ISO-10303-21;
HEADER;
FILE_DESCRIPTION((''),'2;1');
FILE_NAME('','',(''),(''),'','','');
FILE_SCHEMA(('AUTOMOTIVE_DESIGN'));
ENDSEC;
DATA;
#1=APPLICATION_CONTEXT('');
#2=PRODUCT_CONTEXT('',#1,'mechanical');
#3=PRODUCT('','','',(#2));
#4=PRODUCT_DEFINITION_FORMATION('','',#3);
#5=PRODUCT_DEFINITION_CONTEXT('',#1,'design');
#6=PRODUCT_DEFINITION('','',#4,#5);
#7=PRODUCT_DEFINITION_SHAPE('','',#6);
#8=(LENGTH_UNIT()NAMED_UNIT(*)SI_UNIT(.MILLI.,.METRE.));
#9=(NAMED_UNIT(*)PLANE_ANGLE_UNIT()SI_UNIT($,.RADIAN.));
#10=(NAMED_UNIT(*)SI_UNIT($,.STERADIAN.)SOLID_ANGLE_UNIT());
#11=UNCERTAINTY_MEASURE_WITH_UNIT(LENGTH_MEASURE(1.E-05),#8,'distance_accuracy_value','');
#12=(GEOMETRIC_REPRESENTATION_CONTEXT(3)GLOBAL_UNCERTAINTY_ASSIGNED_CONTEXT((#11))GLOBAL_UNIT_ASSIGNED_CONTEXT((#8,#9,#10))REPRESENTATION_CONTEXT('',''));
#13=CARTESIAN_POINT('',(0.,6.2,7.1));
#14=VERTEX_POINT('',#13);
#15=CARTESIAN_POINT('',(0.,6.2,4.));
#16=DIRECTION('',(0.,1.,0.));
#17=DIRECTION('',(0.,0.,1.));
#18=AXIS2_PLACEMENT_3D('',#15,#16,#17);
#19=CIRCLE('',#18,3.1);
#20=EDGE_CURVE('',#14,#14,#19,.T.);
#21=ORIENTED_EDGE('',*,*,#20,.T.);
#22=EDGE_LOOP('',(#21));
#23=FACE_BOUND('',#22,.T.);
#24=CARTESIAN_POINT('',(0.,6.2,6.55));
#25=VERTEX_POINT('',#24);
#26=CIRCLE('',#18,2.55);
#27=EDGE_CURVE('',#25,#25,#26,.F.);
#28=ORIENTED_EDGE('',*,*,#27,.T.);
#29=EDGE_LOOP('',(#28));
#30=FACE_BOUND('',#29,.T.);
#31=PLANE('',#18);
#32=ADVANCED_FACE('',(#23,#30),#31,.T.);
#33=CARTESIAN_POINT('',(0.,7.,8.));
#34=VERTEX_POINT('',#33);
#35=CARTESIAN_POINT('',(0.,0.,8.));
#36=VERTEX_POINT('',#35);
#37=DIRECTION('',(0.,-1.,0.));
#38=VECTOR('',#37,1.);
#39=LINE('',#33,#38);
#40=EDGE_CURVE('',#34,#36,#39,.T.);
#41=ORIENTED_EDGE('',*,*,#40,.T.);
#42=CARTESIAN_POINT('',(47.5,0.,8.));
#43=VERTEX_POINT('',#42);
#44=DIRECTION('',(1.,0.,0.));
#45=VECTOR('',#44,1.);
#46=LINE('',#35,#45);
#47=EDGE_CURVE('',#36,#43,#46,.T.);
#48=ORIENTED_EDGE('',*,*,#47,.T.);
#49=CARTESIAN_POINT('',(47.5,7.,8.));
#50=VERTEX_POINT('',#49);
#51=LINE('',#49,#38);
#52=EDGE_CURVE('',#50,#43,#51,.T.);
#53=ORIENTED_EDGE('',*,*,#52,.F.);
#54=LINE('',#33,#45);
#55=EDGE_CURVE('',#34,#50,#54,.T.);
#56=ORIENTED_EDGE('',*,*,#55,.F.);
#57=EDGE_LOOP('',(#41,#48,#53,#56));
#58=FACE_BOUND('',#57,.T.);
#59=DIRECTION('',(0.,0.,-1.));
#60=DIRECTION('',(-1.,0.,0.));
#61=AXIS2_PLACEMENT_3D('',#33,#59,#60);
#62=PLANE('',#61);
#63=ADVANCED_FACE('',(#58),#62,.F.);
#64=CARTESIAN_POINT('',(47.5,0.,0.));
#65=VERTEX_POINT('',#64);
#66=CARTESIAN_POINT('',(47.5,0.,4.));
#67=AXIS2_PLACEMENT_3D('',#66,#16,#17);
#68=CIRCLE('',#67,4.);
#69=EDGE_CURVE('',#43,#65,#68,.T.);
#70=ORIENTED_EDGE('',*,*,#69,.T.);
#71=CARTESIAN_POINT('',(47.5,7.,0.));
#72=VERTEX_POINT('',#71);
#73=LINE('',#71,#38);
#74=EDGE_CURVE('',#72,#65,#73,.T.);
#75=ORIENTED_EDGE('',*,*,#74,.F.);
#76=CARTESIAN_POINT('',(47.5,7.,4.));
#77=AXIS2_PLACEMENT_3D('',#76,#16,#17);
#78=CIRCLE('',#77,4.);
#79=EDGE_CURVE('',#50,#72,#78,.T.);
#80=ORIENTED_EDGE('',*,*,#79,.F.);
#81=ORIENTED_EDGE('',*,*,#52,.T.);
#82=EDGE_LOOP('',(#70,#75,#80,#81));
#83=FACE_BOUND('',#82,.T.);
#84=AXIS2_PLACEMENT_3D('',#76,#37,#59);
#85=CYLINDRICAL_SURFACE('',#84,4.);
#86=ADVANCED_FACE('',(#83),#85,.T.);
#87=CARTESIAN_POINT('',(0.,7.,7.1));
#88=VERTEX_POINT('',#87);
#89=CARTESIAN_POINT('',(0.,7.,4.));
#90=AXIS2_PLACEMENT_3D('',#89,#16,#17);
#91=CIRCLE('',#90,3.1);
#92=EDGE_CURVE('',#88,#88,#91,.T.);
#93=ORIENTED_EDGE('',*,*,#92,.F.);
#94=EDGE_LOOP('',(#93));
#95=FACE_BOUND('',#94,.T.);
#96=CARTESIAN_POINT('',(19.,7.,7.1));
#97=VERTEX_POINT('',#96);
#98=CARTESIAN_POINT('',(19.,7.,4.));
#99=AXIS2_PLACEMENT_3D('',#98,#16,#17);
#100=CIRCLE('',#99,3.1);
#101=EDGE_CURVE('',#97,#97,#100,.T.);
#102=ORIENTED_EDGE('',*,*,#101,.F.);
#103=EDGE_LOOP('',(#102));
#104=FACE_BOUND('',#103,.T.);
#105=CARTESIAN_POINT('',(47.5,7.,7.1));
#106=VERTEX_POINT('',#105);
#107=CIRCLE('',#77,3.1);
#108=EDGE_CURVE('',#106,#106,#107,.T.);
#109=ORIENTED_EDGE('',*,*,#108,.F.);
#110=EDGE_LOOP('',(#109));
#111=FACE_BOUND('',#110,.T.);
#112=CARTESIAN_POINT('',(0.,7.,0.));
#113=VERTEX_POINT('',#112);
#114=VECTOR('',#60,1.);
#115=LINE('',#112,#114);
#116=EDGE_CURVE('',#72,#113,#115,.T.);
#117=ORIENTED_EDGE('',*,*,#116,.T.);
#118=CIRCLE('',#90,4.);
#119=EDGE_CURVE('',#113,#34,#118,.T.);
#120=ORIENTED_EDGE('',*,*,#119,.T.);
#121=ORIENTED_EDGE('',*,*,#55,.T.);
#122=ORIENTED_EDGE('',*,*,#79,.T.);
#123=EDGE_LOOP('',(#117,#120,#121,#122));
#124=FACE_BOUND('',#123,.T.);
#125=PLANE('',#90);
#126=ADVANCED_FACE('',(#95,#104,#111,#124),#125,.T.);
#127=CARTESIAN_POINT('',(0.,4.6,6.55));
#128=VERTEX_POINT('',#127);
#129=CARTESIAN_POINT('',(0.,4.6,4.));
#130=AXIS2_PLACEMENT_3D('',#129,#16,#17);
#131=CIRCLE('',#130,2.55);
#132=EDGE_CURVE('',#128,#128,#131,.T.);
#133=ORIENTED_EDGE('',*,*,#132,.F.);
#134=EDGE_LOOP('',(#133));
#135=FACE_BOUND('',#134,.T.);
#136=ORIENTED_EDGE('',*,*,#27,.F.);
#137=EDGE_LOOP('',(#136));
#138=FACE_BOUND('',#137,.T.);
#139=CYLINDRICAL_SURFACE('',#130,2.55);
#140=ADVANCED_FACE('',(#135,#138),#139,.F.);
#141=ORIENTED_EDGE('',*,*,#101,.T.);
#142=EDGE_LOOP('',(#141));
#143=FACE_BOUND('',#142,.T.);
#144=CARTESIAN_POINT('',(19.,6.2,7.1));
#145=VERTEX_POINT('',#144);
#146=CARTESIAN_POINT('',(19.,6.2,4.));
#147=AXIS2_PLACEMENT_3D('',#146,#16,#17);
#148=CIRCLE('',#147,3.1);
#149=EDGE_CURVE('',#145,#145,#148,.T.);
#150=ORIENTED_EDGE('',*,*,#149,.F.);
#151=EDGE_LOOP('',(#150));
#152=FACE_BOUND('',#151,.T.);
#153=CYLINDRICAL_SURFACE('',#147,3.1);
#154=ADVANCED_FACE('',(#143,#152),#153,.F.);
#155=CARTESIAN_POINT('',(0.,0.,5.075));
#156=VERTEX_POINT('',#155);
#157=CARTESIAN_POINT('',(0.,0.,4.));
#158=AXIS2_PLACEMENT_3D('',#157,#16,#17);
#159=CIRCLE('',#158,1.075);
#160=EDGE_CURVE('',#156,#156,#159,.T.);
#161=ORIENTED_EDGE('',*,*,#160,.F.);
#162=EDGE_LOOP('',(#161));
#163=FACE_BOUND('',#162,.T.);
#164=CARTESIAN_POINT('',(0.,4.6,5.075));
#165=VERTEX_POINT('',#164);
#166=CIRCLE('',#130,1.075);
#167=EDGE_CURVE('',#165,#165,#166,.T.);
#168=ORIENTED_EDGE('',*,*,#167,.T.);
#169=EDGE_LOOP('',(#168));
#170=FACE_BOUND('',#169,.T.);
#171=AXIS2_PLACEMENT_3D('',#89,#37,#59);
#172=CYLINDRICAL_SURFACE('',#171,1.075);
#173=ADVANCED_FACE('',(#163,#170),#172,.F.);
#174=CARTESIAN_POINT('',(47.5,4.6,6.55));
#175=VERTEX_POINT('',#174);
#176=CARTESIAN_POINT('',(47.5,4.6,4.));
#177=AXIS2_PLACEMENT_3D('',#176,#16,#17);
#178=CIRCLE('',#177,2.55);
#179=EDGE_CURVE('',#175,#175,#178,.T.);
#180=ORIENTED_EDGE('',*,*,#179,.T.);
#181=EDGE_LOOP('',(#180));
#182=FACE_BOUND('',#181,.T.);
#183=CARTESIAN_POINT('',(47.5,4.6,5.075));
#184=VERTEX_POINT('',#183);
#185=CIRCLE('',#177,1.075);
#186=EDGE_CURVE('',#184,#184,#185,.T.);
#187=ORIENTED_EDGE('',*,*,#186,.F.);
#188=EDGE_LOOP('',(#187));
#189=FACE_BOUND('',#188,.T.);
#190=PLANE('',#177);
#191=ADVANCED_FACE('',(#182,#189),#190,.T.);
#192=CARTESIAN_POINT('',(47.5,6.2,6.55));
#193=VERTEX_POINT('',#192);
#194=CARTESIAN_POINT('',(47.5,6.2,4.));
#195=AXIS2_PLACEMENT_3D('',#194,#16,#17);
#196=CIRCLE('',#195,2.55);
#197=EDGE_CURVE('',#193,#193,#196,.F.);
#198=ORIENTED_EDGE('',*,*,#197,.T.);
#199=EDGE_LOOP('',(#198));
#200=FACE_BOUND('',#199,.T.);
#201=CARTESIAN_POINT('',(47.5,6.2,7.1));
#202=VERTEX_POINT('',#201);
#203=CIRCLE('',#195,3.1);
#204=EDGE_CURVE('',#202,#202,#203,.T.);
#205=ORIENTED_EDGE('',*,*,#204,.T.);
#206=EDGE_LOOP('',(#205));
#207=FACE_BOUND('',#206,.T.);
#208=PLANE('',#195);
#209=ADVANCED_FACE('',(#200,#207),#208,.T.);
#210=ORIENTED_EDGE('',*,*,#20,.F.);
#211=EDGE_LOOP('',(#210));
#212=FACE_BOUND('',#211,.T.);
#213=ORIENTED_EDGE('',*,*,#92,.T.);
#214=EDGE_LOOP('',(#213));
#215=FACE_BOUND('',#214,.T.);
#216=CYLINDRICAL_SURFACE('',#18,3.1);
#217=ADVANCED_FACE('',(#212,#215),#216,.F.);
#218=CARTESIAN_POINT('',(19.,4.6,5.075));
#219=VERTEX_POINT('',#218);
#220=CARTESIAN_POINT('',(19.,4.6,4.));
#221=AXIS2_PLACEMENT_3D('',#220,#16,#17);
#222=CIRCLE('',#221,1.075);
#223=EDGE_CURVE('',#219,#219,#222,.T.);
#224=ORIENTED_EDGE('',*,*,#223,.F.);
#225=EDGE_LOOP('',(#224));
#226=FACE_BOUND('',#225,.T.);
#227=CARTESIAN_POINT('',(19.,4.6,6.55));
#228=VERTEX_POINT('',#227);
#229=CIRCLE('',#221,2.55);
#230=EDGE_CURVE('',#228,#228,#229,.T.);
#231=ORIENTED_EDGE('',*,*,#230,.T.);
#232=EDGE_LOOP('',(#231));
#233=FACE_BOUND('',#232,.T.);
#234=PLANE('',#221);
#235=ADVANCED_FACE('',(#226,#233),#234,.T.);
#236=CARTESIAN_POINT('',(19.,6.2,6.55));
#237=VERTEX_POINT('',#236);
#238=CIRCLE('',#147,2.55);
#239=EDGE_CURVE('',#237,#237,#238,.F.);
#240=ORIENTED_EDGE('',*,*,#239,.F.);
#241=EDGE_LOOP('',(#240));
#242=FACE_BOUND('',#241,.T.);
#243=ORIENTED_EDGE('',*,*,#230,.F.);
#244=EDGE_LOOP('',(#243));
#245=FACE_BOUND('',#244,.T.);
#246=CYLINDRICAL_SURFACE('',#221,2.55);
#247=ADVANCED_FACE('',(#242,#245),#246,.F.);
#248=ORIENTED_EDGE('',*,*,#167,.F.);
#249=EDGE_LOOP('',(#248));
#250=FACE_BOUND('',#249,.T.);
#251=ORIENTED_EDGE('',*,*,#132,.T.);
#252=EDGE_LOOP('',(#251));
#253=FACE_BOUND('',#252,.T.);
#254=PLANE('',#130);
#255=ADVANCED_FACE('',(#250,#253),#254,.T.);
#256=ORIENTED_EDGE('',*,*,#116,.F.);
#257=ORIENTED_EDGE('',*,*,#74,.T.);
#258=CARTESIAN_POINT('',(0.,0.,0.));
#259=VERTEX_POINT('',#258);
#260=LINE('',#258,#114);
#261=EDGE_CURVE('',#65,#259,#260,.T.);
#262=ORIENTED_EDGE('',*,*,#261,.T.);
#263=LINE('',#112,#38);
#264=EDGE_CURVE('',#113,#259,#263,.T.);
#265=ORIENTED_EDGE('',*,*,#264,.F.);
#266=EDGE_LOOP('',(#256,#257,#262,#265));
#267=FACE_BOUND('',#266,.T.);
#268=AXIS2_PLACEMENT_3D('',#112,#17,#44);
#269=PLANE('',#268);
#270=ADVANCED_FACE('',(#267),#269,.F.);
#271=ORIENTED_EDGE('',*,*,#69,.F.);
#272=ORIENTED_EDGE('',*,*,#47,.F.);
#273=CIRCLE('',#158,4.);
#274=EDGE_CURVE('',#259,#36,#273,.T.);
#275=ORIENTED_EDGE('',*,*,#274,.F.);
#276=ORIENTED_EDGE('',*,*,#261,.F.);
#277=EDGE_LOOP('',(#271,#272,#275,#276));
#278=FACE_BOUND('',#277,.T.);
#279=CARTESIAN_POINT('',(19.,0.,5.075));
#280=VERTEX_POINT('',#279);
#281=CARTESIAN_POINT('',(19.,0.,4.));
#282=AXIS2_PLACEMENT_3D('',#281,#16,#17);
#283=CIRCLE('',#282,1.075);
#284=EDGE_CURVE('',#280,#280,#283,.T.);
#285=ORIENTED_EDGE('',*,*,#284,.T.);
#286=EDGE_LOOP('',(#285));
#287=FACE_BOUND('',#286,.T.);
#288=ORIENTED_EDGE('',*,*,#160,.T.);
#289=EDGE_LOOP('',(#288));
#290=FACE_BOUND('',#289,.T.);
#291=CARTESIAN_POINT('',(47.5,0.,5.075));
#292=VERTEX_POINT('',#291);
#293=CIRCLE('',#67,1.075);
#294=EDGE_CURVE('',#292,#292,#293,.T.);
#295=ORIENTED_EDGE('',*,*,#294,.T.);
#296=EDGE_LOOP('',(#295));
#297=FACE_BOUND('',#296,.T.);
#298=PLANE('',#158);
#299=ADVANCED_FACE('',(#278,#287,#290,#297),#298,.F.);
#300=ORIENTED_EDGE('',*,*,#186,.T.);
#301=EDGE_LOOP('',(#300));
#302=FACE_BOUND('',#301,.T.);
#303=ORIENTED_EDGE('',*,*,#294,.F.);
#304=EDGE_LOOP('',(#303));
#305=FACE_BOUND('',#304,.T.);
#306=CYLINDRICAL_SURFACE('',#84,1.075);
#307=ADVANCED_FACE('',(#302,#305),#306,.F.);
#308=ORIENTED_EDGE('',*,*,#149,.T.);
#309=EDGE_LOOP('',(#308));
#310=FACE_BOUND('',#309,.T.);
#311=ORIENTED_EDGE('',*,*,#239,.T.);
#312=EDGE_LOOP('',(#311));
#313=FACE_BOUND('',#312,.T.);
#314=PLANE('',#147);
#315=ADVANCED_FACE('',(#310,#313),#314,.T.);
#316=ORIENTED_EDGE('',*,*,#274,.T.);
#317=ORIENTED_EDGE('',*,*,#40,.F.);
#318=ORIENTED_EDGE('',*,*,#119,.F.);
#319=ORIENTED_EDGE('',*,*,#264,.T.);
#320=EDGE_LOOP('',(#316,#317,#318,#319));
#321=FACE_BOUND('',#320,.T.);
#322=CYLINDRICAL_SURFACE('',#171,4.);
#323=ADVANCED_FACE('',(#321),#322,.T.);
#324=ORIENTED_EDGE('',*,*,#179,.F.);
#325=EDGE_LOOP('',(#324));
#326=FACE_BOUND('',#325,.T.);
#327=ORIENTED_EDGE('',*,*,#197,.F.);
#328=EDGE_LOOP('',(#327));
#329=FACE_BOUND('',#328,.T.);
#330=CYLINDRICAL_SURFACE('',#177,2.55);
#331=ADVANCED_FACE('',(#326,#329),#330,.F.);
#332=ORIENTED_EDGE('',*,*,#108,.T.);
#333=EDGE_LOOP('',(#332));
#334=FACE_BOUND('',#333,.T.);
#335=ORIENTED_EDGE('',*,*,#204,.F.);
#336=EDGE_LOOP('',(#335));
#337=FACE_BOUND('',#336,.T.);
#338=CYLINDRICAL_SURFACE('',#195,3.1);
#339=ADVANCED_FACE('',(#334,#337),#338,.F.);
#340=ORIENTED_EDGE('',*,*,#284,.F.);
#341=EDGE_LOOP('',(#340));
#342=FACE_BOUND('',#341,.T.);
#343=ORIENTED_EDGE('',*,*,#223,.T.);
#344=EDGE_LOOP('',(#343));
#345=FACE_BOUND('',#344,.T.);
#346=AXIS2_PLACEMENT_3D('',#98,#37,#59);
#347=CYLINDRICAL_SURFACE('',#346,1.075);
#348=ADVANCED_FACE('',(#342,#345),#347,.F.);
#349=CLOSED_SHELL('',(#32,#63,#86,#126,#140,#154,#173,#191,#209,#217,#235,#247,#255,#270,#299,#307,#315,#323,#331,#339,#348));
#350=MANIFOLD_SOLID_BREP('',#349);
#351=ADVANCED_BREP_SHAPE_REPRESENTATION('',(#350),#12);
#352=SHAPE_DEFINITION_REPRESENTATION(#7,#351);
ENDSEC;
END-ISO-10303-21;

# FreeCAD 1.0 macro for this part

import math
import FreeCAD as App
import Part
import Sketcher
from FreeCAD import Vector
Q = App.Units.Quantity

doc = App.newDocument("Part")
body = doc.addObject("PartDesign::Body", "Body")

# Sketch on XZ plane
sketch1 = body.newObject("Sketcher::SketchObject", "Sketch")
sketch1.AttachmentSupport = (doc.getObject("XZ_Plane"), [""])
sketch1.MapMode = "FlatFace"
sketch1.addGeometry([
    Part.LineSegment(Vector(47.5, 0, 0), Vector(0, 0, 0)),  # 0
    Part.ArcOfCircle(Part.Circle(Vector(0, 4, 0), Vector(0, 0, 1), 4), math.radians(90), math.radians(270)),  # 1
    Part.LineSegment(Vector(0, 8, 0), Vector(47.5, 8, 0)),  # 2
    Part.ArcOfCircle(Part.Circle(Vector(47.5, 4, 0), Vector(0, 0, 1), 4), math.radians(-90), math.radians(90)),  # 3
    Part.Circle(Vector(47.5, 4, 0), Vector(0, 0, 1), 1.1),  # 4
    Part.Circle(Vector(19, 4, 0), Vector(0, 0, 1), 1.1),  # 5
    Part.Circle(Vector(0, 4, 0), Vector(0, 0, 1), 1.1),  # 6
], False)
sketch1.addConstraint([
    Sketcher.Constraint("Tangent", 0, 2, 1, 2),
    Sketcher.Constraint("Tangent", 1, 1, 2, 1),
    Sketcher.Constraint("Tangent", 2, 2, 3, 2),
    Sketcher.Constraint("Tangent", 3, 1, 0, 1),
    Sketcher.Constraint("Horizontal", 0),
    Sketcher.Constraint("Horizontal", 2),
    Sketcher.Constraint("Coincident", 0, 2, -1, 1),
    Sketcher.Constraint("Coincident", 4, 3, 3, 3),
    Sketcher.Constraint("Coincident", 6, 3, 1, 3),
    Sketcher.Constraint("Equal", 4, 5),
    Sketcher.Constraint("Equal", 5, 6),
    Sketcher.Constraint("Horizontal", 4, 3, 5, 3),
    Sketcher.Constraint("Radius", 1, Q("4 mm")),
    Sketcher.Constraint("Diameter", 4, Q("2.15 mm")),
    Sketcher.Constraint("DistanceX", 0, 2, 0, 1, Q("47.5 mm")),
    Sketcher.Constraint("DistanceX", -1, 1, 5, 3, Q("19 mm")),
])
pad1 = body.newObject("PartDesign::Pad", "Pad")
pad1.Profile = sketch1
pad1.Length = 7
pad1.Reversed = True

# Sketch on XZ plane
sketch2 = body.newObject("Sketcher::SketchObject", "Sketch001")
sketch2.AttachmentSupport = (doc.getObject("XZ_Plane"), [""])
sketch2.MapMode = "FlatFace"
sketch2.AttachmentOffset = App.Placement(Vector(0, 0, -7), App.Rotation())
sketch2.addGeometry([
    Part.Circle(Vector(0, 4, 0), Vector(0, 0, 1), 2.5),
    Part.Circle(Vector(19, 4, 0), Vector(0, 0, 1), 2.5),
    Part.Circle(Vector(47.5, 4, 0), Vector(0, 0, 1), 2.5),
], False)
sketch2.addConstraint([
    Sketcher.Constraint("Equal", 0, 1),
    Sketcher.Constraint("Equal", 1, 2),
    Sketcher.Constraint("PointOnObject", 0, 3, -2),
    Sketcher.Constraint("Horizontal", 0, 3, 1, 3),
    Sketcher.Constraint("Horizontal", 1, 3, 2, 3),
    Sketcher.Constraint("Diameter", 0, Q("5.1 mm")),
    Sketcher.Constraint("DistanceY", -1, 1, 0, 3, Q("4 mm")),
    Sketcher.Constraint("DistanceX", -1, 1, 1, 3, Q("19 mm")),
    Sketcher.Constraint("DistanceX", -1, 1, 2, 3, Q("47.5 mm")),
])
pocket1 = body.newObject("PartDesign::Pocket", "Pocket")
pocket1.Profile = sketch2
pocket1.Length = 2.4
pocket1.Reversed = True

# Sketch on XZ plane
sketch3 = body.newObject("Sketcher::SketchObject", "Sketch002")
sketch3.AttachmentSupport = (doc.getObject("XZ_Plane"), [""])
sketch3.MapMode = "FlatFace"
sketch3.AttachmentOffset = App.Placement(Vector(0, 0, -7), App.Rotation())
sketch3.addGeometry([
    Part.Circle(Vector(0, 4, 0), Vector(0, 0, 1), 3.1),
    Part.Circle(Vector(19, 4, 0), Vector(0, 0, 1), 3.1),
    Part.Circle(Vector(47.5, 4, 0), Vector(0, 0, 1), 3.1),
], False)
sketch3.addConstraint([
    Sketcher.Constraint("Equal", 0, 1),
    Sketcher.Constraint("Equal", 1, 2),
    Sketcher.Constraint("PointOnObject", 0, 3, -2),
    Sketcher.Constraint("Horizontal", 0, 3, 1, 3),
    Sketcher.Constraint("Horizontal", 1, 3, 2, 3),
    Sketcher.Constraint("Diameter", 0, Q("6.2 mm")),
    Sketcher.Constraint("DistanceY", -1, 1, 0, 3, Q("4 mm")),
    Sketcher.Constraint("DistanceX", -1, 1, 1, 3, Q("19 mm")),
    Sketcher.Constraint("DistanceX", -1, 1, 2, 3, Q("47.5 mm")),
])
pocket2 = body.newObject("PartDesign::Pocket", "Pocket001")
pocket2.Profile = sketch3
pocket2.Length = 0.8
pocket2.Reversed = True

doc.recompute()
